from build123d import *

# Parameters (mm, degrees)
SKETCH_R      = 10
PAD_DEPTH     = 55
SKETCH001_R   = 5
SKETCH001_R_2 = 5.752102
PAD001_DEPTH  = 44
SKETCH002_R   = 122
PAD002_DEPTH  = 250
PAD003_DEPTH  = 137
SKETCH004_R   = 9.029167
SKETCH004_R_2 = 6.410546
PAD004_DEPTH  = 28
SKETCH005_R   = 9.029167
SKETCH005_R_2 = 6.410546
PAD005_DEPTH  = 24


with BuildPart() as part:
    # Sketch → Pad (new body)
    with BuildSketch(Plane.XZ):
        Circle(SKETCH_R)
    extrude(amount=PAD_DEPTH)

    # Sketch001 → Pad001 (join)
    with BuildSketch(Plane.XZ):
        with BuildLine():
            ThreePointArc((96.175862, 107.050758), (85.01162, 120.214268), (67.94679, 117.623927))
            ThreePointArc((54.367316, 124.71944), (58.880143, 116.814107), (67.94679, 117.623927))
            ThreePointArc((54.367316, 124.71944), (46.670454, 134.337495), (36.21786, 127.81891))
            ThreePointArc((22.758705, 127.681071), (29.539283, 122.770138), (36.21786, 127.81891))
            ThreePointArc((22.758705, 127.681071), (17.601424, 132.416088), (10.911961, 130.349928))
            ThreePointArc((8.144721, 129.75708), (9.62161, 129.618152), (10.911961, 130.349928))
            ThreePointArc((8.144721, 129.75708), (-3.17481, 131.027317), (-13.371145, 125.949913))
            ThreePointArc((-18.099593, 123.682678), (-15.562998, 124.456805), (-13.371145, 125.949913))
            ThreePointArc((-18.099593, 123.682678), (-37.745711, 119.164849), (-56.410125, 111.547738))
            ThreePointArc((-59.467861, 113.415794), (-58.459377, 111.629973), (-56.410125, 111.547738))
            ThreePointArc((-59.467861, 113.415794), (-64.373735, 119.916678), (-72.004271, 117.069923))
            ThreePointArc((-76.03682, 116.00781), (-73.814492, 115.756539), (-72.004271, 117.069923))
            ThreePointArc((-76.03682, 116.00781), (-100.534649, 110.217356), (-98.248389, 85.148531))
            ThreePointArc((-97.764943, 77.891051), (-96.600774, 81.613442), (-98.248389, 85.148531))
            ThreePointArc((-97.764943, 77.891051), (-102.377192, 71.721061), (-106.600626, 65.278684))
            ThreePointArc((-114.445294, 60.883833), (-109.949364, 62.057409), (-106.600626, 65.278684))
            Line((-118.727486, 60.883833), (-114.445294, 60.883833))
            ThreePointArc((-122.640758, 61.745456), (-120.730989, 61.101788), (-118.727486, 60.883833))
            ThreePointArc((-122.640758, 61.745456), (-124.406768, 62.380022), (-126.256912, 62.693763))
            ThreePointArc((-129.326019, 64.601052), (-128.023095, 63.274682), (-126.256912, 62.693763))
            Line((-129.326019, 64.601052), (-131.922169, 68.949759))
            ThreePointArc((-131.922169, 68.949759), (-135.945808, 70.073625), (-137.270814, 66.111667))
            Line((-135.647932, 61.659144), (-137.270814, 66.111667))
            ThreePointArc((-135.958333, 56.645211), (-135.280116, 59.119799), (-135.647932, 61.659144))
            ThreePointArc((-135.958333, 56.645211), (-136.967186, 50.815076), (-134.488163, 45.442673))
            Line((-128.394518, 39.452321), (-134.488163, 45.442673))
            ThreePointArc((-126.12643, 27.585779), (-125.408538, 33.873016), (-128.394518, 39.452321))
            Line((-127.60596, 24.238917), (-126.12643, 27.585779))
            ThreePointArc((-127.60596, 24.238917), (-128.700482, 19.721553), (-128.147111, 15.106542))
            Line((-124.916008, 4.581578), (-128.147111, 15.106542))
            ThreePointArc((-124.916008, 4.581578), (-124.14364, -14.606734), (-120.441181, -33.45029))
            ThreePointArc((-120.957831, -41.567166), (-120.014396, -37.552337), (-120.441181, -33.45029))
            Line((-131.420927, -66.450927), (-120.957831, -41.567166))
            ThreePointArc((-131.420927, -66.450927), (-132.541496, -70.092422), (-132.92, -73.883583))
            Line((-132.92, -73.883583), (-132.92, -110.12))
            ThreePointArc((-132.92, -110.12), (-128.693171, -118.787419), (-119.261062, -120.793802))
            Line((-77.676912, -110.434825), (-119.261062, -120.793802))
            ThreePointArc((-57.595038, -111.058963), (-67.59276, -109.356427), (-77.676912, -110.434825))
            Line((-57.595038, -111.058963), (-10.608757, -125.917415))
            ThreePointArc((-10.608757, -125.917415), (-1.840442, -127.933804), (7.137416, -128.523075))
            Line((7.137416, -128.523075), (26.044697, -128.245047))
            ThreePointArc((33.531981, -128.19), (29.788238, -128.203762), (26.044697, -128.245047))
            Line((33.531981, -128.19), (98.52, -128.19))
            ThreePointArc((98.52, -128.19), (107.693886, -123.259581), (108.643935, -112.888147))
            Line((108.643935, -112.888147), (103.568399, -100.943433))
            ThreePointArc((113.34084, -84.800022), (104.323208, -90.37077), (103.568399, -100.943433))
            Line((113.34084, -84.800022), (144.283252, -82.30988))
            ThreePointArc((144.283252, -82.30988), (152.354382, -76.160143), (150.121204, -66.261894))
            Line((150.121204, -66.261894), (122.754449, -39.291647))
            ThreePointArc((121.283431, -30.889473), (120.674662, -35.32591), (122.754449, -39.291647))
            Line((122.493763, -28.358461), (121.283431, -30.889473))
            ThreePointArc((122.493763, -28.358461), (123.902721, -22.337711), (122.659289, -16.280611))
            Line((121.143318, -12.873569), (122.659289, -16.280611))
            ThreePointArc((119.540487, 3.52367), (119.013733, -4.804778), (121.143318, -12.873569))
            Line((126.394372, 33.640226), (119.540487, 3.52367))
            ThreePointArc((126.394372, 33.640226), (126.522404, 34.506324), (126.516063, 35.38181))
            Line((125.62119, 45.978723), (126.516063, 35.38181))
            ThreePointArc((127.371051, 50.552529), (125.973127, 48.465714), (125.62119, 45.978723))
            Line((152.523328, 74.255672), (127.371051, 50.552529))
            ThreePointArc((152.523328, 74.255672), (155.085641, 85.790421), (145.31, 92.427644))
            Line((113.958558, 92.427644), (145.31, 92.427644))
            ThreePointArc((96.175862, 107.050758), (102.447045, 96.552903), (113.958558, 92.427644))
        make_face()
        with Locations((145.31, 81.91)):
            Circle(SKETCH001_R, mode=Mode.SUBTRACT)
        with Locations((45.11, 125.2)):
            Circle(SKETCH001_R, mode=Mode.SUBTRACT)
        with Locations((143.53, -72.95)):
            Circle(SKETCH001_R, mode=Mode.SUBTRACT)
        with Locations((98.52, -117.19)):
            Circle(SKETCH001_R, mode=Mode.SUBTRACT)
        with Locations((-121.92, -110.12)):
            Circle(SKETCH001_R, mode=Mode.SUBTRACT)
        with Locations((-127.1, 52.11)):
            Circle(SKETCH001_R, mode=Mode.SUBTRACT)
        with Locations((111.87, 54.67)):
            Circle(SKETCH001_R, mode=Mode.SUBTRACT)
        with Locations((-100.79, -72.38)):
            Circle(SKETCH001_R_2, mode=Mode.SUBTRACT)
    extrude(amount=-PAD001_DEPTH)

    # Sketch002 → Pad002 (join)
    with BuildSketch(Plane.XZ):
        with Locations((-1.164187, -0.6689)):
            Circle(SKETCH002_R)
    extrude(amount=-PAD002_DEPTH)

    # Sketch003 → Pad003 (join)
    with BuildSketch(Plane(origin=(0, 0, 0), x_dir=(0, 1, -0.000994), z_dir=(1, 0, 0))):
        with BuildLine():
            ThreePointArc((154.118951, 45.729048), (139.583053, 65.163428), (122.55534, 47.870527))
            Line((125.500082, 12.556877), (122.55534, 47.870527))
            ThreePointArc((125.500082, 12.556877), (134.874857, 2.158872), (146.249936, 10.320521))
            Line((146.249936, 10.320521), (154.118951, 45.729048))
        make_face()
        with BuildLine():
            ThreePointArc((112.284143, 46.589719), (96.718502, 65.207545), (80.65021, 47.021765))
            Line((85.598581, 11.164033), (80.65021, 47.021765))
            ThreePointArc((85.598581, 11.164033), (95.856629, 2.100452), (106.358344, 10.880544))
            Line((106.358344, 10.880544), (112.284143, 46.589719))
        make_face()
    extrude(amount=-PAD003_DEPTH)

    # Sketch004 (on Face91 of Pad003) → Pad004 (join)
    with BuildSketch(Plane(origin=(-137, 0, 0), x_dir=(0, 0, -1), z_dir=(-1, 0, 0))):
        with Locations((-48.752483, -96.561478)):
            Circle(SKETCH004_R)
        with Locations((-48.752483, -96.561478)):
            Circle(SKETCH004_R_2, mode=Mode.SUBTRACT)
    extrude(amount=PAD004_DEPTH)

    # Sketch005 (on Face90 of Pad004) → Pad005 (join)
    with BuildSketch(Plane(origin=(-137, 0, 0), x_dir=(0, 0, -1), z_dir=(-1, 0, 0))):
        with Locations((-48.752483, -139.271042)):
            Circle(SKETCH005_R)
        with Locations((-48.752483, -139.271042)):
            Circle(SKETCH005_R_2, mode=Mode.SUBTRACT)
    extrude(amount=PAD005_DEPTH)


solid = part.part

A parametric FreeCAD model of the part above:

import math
import FreeCAD as App
import Part
import Sketcher

V = App.Vector

doc = App.newDocument("Part")
body = doc.addObject("PartDesign::Body", "Body")

sketch1 = doc.addObject("Sketcher::SketchObject", "Sketch")
body.addObject(sketch1)
sketch1.AttachmentSupport = (doc.XZ_Plane, [""])
sketch1.MapMode = "FlatFace"
sketch1.addGeometry(Part.Circle(V(0, 0, 0), V(0, 0, 1), 10), False)
sketch1.addConstraint(Sketcher.Constraint("Coincident", 0, 3, -1, 1))
sketch1.addConstraint(Sketcher.Constraint("Diameter", 0, 20.0))
pad1 = doc.addObject("PartDesign::Pad", "Pad")
body.addObject(pad1)
pad1.Profile = sketch1
pad1.Length = 55

sketch2 = doc.addObject("Sketcher::SketchObject", "Sketch001")
body.addObject(sketch2)
sketch2.AttachmentSupport = (doc.XZ_Plane, [""])
sketch2.MapMode = "FlatFace"
sketch2.addGeometry(Part.ArcOfCircle(Part.Circle(V(78.8, 103.63, 0), V(0, 0, 1), 17.70938), math.radians(11.137301), math.radians(127.79593)), False)
sketch2.addGeometry(Part.ArcOfCircle(Part.Circle(V(62.782558, 124.282593, 0), V(0, 0, 1), 8.426573), math.radians(177.028366), math.radians(307.795922)), False)
sketch2.addGeometry(Part.ArcOfCircle(Part.Circle(V(45.11, 125.199999, 0), V(0, 0, 1), 9.269781), math.radians(-2.971632), math.radians(163.589259)), False)
sketch2.addGeometry(Part.ArcOfCircle(Part.Circle(V(29.467215, 129.807108, 0), V(0, 0, 1), 7.037339), math.radians(-162.415737), math.radians(-16.410739)), False)
sketch2.addGeometry(Part.ArcOfCircle(Part.Circle(V(16.05618, 125.556931, 0), V(0, 0, 1), 7.03106), math.radians(17.584259), math.radians(137.024229)), False)
sketch2.addGeometry(Part.ArcOfCircle(Part.Circle(V(9.103933, 132.034513, 0), V(0, 0, 1), 2.471192), math.radians(-112.839917), math.radians(-42.975795)), False)
sketch2.addGeometry(Part.ArcOfCircle(Part.Circle(V(0.332168, 111.207945, 0), V(0, 0, 1), 20.127255), math.radians(67.160072), math.radians(132.908822)), False)
sketch2.addGeometry(Part.ArcOfCircle(Part.Circle(V(-19.376858, 132.410828, 0), V(0, 0, 1), 8.821111), math.radians(-81.674514), math.radians(-47.09115)), False)
sketch2.addGeometry(Part.ArcOfCircle(Part.Circle(V(0.000014, -0.000042, 0), V(0, 0, 1), 125.000044), math.radians(98.325513), math.radians(116.825898)), False)
sketch2.addGeometry(Part.ArcOfCircle(Part.Circle(V(-57.36095, 113.427938, 0), V(0, 0, 1), 2.106946), math.radians(-179.669745), math.radians(-63.174092)), False)
sketch2.addGeometry(Part.ArcOfCircle(Part.Circle(V(-66.280067, 113.376526, 0), V(0, 0, 1), 6.812319), math.radians(0.330272), math.radians(147.168896)), False)
sketch2.addGeometry(Part.ArcOfCircle(Part.Circle(V(-74.601859, 118.745951, 0), V(0, 0, 1), 3.091364), math.radians(-117.657417), math.radians(-32.831117)), False)
sketch2.addGeometry(Part.ArcOfCircle(Part.Circle(V(-84.95, 99, 0), V(0, 0, 1), 19.201832), math.radians(62.342587), math.radians(226.167033)), False)
sketch2.addGeometry(Part.ArcOfCircle(Part.Circle(V(-101.98678, 81.254662, 0), V(0, 0, 1), 5.397943), math.radians(-38.544937), math.radians(46.167019)), False)
sketch2.addGeometry(Part.ArcOfCircle(Part.Circle(V(-0.000099, 0.000064, 0), V(0, 0, 1), 124.999883), math.radians(141.455045), math.radians(148.518082)), False)
sketch2.addGeometry(Part.ArcOfCircle(Part.Circle(V(-114.445294, 70.082499, 0), V(0, 0, 1), 9.198666), math.radians(-90), math.radians(-31.481922)), False)
sketch2.addGeometry(Part.LineSegment(V(-114.445294, 60.883833, 0), V(-118.727486, 60.883833, 0)), False)
sketch2.addGeometry(Part.ArcOfCircle(Part.Circle(V(-118.727487, 70.201184, 0), V(0, 0, 1), 9.317351), math.radians(-114.83448), math.radians(-89.999997)), False)
sketch2.addGeometry(Part.ArcOfCircle(Part.Circle(V(-127.099993, 52.110018, 0), V(0, 0, 1), 10.617271), math.radians(65.165523), math.radians(85.445543)), False)
sketch2.addGeometry(Part.ArcOfCircle(Part.Circle(V(-125.944149, 66.62001, 0), V(0, 0, 1), 3.938685), math.radians(-149.163026), math.radians(-94.55454)), False)
sketch2.addGeometry(Part.LineSegment(V(-129.326019, 64.601052, 0), V(-131.922169, 68.949759, 0)), False)
sketch2.addGeometry(Part.ArcOfCircle(Part.Circle(V(-134.524961, 67.395907, 0), V(0, 0, 1), 3.031333), math.radians(30.836967), math.radians(205.065564)), False)
sketch2.addGeometry(Part.LineSegment(V(-137.270814, 66.111667, 0), V(-135.647932, 61.659144, 0)), False)
sketch2.addGeometry(Part.ArcOfCircle(Part.Circle(V(-141.549925, 59.507948, 0), V(0, 0, 1), 6.281813), math.radians(-27.111163), math.radians(20.026106)), False)
sketch2.addGeometry(Part.ArcOfCircle(Part.Circle(V(-127.099996, 52.110001, 0), V(0, 0, 1), 9.951797), math.radians(152.888876), math.radians(222.064144)), False)
sketch2.addGeometry(Part.LineSegment(V(-134.488163, 45.442673, 0), V(-128.394518, 39.452321, 0)), False)
sketch2.addGeometry(Part.ArcOfCircle(Part.Circle(V(-135.839075, 31.879396, 0), V(0, 0, 1), 10.619351), math.radians(-23.848529), math.radians(45.489748)), False)
sketch2.addGeometry(Part.LineSegment(V(-126.12643, 27.585779, 0), V(-127.60596, 24.238917, 0)), False)
sketch2.addGeometry(Part.ArcOfCircle(Part.Circle(V(-115.635946, 18.947397, 0), V(0, 0, 1), 13.087452), math.radians(156.151473), math.radians(197.066183)), False)
sketch2.addGeometry(Part.LineSegment(V(-128.147111, 15.106542, 0), V(-124.916008, 4.581578, 0)), False)
sketch2.addGeometry(Part.ArcOfCircle(Part.Circle(V(-0.000028, -0.000004, 0), V(0, 0, 1), 124.999972), math.radians(177.899486), math.radians(195.521642)), False)
sketch2.addGeometry(Part.ArcOfCircle(Part.Circle(V(-132.377588, -36.765402, 0), V(0, 0, 1), 12.388212), math.radians(-22.805711), math.radians(15.521632)), False)
sketch2.addGeometry(Part.LineSegment(V(-120.957831, -41.567166, 0), V(-131.420927, -66.450927, 0)), False)
sketch2.addGeometry(Part.ArcOfCircle(Part.Circle(V(-113.74428, -73.883584, 0), V(0, 0, 1), 19.17572), math.radians(157.194274), math.radians(179.999998)), False)
sketch2.addGeometry(Part.LineSegment(V(-132.92, -73.883583, 0), V(-132.92, -110.12, 0)), False)
sketch2.addGeometry(Part.ArcOfCircle(Part.Circle(V(-121.92, -110.12, 0), V(0, 0, 1), 11), math.radians(-179.999999), math.radians(-76.011826)), False)
sketch2.addGeometry(Part.LineSegment(V(-119.261062, -120.793802, 0), V(-77.676912, -110.434825, 0)), False)
sketch2.addGeometry(Part.ArcOfCircle(Part.Circle(V(-68.741135, -146.305817, 0), V(0, 0, 1), 36.967231), math.radians(72.451507), math.radians(103.988172)), False)
sketch2.addGeometry(Part.LineSegment(V(-57.595038, -111.058963, 0), V(-10.608757, -125.917415, 0)), False)
sketch2.addGeometry(Part.ArcOfCircle(Part.Circle(V(6.312271, -72.408732, 0), V(0, 0, 1), 56.120409), math.radians(-107.548495), math.radians(-89.157543)), False)
sketch2.addGeometry(Part.LineSegment(V(7.137416, -128.523075, 0), V(26.044697, -128.245047, 0)), False)
sketch2.addGeometry(Part.ArcOfCircle(Part.Circle(V(33.531999, -637.415916, 0), V(0, 0, 1), 509.225916), math.radians(90.000002), math.radians(90.842467)), False)
sketch2.addGeometry(Part.LineSegment(V(33.531981, -128.19, 0), V(98.52, -128.19, 0)), False)
sketch2.addGeometry(Part.ArcOfCircle(Part.Circle(V(98.52, -117.19, 0), V(0, 0, 1), 11), math.radians(-89.999999), math.radians(23.021563)), False)
sketch2.addGeometry(Part.LineSegment(V(108.643935, -112.888147, 0), V(103.568399, -100.943433, 0)), False)
sketch2.addGeometry(Part.ArcOfCircle(Part.Circle(V(114.273922, -96.394452, 0), V(0, 0, 1), 11.631915), math.radians(94.60106), math.radians(203.021566)), False)
sketch2.addGeometry(Part.LineSegment(V(113.34084, -84.800022, 0), V(144.283252, -82.30988, 0)), False)
sketch2.addGeometry(Part.ArcOfCircle(Part.Circle(V(143.53, -72.95, 0), V(0, 0, 1), 9.39014), math.radians(-85.398941), math.radians(45.418092)), False)
sketch2.addGeometry(Part.LineSegment(V(150.121204, -66.261894, 0), V(122.754449, -39.291647, 0)), False)
sketch2.addGeometry(Part.ArcOfCircle(Part.Circle(V(127.911341, -34.058943, 0), V(0, 0, 1), 7.34675), math.radians(154.442851), math.radians(225.418076)), False)
sketch2.addGeometry(Part.LineSegment(V(121.283431, -30.889473, 0), V(122.493763, -28.358461, 0)), False)
sketch2.addGeometry(Part.ArcOfCircle(Part.Circle(V(109.490282, -22.14019, 0), V(0, 0, 1), 14.413792), math.radians(-25.55715), math.radians(23.98678)), False)
sketch2.addGeometry(Part.LineSegment(V(122.659289, -16.280611, 0), V(121.143318, -12.873569, 0)), False)
sketch2.addGeometry(Part.ArcOfCircle(Part.Circle(V(144.98233, -2.266346, 0), V(0, 0, 1), 26.092368), math.radians(167.179076), math.radians(203.986782)), False)
sketch2.addGeometry(Part.LineSegment(V(119.540487, 3.52367, 0), V(126.394372, 33.640226, 0)), False)
sketch2.addGeometry(Part.ArcOfCircle(Part.Circle(V(120.845719, 34.902975, 0), V(0, 0, 1), 5.690526), math.radians(-12.820871), math.radians(4.826922)), False)
sketch2.addGeometry(Part.LineSegment(V(126.516063, 35.38181, 0), V(125.62119, 45.978723, 0)), False)
sketch2.addGeometry(Part.ArcOfCircle(Part.Circle(V(131.234616, 46.452758, 0), V(0, 0, 1), 5.633406), math.radians(133.301006), math.radians(184.826979)), False)
sketch2.addGeometry(Part.LineSegment(V(127.371051, 50.552529, 0), V(152.523328, 74.255672, 0)), False)
sketch2.addGeometry(Part.ArcOfCircle(Part.Circle(V(145.309999, 81.91, 0), V(0, 0, 1), 10.517644), math.radians(-46.698987), math.radians(89.999995)), False)
sketch2.addGeometry(Part.LineSegment(V(145.31, 92.427644, 0), V(113.958558, 92.427644, 0)), False)
sketch2.addGeometry(Part.ArcOfCircle(Part.Circle(V(113.958558, 110.551682, 0), V(0, 0, 1), 18.124038), math.radians(-168.86247), math.radians(-90.000002)), False)
sketch2.addGeometry(Part.Circle(V(-121.92, -110.12, 0), V(0, 0, 1), 5), False)
sketch2.addGeometry(Part.Circle(V(-100.79, -72.38, 0), V(0, 0, 1), 5.752102), False)
sketch2.addGeometry(Part.Circle(V(98.52, -117.19, 0), V(0, 0, 1), 5), False)
sketch2.addGeometry(Part.Circle(V(143.53, -72.95, 0), V(0, 0, 1), 5), False)
sketch2.addGeometry(Part.Circle(V(-127.1, 52.11, 0), V(0, 0, 1), 5), False)
sketch2.addGeometry(Part.Circle(V(111.87, 54.67, 0), V(0, 0, 1), 5), False)
sketch2.addGeometry(Part.Circle(V(45.11, 125.2, 0), V(0, 0, 1), 5), False)
sketch2.addGeometry(Part.Circle(V(145.31, 81.91, 0), V(0, 0, 1), 5), False)
sketch2.addConstraint(Sketcher.Constraint("Coincident", 0, 2, 1, 2))
sketch2.addConstraint(Sketcher.Constraint("Coincident", 1, 1, 2, 1))
sketch2.addConstraint(Sketcher.Constraint("Coincident", 2, 2, 3, 2))
sketch2.addConstraint(Sketcher.Constraint("Coincident", 3, 1, 4, 1))
sketch2.addConstraint(Sketcher.Constraint("Coincident", 4, 2, 5, 2))
sketch2.addConstraint(Sketcher.Constraint("Coincident", 5, 1, 6, 1))
sketch2.addConstraint(Sketcher.Constraint("Coincident", 6, 2, 7, 2))
sketch2.addConstraint(Sketcher.Constraint("Coincident", 7, 1, 8, 1))
sketch2.addConstraint(Sketcher.Constraint("Coincident", 8, 2, 9, 2))
sketch2.addConstraint(Sketcher.Constraint("Coincident", 9, 1, 10, 1))
sketch2.addConstraint(Sketcher.Constraint("Coincident", 10, 2, 11, 2))
sketch2.addConstraint(Sketcher.Constraint("Coincident", 11, 1, 12, 1))
sketch2.addConstraint(Sketcher.Constraint("Coincident", 12, 2, 13, 2))
sketch2.addConstraint(Sketcher.Constraint("Coincident", 13, 1, 14, 1))
sketch2.addConstraint(Sketcher.Constraint("Coincident", 14, 2, 15, 2))
sketch2.addConstraint(Sketcher.Constraint("Coincident", 15, 1, 16, 1))
sketch2.addConstraint(Sketcher.Constraint("Coincident", 16, 2, 17, 2))
sketch2.addConstraint(Sketcher.Constraint("Coincident", 17, 1, 18, 1))
sketch2.addConstraint(Sketcher.Constraint("Coincident", 18, 2, 19, 2))
sketch2.addConstraint(Sketcher.Constraint("Coincident", 19, 1, 20, 1))
sketch2.addConstraint(Sketcher.Constraint("Coincident", 20, 2, 21, 1))
sketch2.addConstraint(Sketcher.Constraint("Coincident", 21, 2, 22, 1))
sketch2.addConstraint(Sketcher.Constraint("Coincident", 22, 2, 23, 2))
sketch2.addConstraint(Sketcher.Constraint("Coincident", 23, 1, 24, 1))
sketch2.addConstraint(Sketcher.Constraint("Coincident", 24, 2, 25, 1))
sketch2.addConstraint(Sketcher.Constraint("Coincident", 25, 2, 26, 2))
sketch2.addConstraint(Sketcher.Constraint("Coincident", 26, 1, 27, 1))
sketch2.addConstraint(Sketcher.Constraint("Coincident", 27, 2, 28, 1))
sketch2.addConstraint(Sketcher.Constraint("Coincident", 28, 2, 29, 1))
sketch2.addConstraint(Sketcher.Constraint("Coincident", 29, 2, 30, 1))
sketch2.addConstraint(Sketcher.Constraint("Coincident", 30, 2, 31, 2))
sketch2.addConstraint(Sketcher.Constraint("Coincident", 31, 1, 32, 1))
sketch2.addConstraint(Sketcher.Constraint("Coincident", 32, 2, 33, 1))
sketch2.addConstraint(Sketcher.Constraint("Coincident", 33, 2, 34, 1))
sketch2.addConstraint(Sketcher.Constraint("Coincident", 34, 2, 35, 1))
sketch2.addConstraint(Sketcher.Constraint("Coincident", 35, 2, 36, 1))
sketch2.addConstraint(Sketcher.Constraint("Coincident", 36, 2, 37, 2))
sketch2.addConstraint(Sketcher.Constraint("Coincident", 37, 1, 38, 1))
sketch2.addConstraint(Sketcher.Constraint("Coincident", 38, 2, 39, 1))
sketch2.addConstraint(Sketcher.Constraint("Coincident", 39, 2, 40, 1))
sketch2.addConstraint(Sketcher.Constraint("Coincident", 40, 2, 41, 2))
sketch2.addConstraint(Sketcher.Constraint("Coincident", 41, 1, 42, 1))
sketch2.addConstraint(Sketcher.Constraint("Coincident", 42, 2, 43, 1))
sketch2.addConstraint(Sketcher.Constraint("Coincident", 43, 2, 44, 1))
sketch2.addConstraint(Sketcher.Constraint("Coincident", 44, 2, 45, 2))
sketch2.addConstraint(Sketcher.Constraint("Coincident", 45, 1, 46, 1))
sketch2.addConstraint(Sketcher.Constraint("Coincident", 46, 2, 47, 1))
sketch2.addConstraint(Sketcher.Constraint("Coincident", 47, 2, 48, 1))
sketch2.addConstraint(Sketcher.Constraint("Coincident", 48, 2, 49, 2))
sketch2.addConstraint(Sketcher.Constraint("Coincident", 49, 1, 50, 1))
sketch2.addConstraint(Sketcher.Constraint("Coincident", 50, 2, 51, 1))
sketch2.addConstraint(Sketcher.Constraint("Coincident", 51, 2, 52, 1))
sketch2.addConstraint(Sketcher.Constraint("Coincident", 52, 2, 53, 2))
sketch2.addConstraint(Sketcher.Constraint("Coincident", 53, 1, 54, 1))
sketch2.addConstraint(Sketcher.Constraint("Coincident", 54, 2, 55, 1))
sketch2.addConstraint(Sketcher.Constraint("Coincident", 55, 2, 56, 1))
sketch2.addConstraint(Sketcher.Constraint("Coincident", 56, 2, 57, 2))
sketch2.addConstraint(Sketcher.Constraint("Coincident", 57, 1, 58, 1))
sketch2.addConstraint(Sketcher.Constraint("Coincident", 58, 2, 59, 1))
sketch2.addConstraint(Sketcher.Constraint("Coincident", 59, 2, 60, 1))
sketch2.addConstraint(Sketcher.Constraint("Coincident", 60, 2, 61, 2))
sketch2.addConstraint(Sketcher.Constraint("Coincident", 61, 1, 0, 1))
sketch2.addConstraint(Sketcher.Constraint("Horizontal", 16))
sketch2.addConstraint(Sketcher.Constraint("Vertical", 34))
sketch2.addConstraint(Sketcher.Constraint("Horizontal", 42))
sketch2.addConstraint(Sketcher.Constraint("Horizontal", 60))
sketch2.addConstraint(Sketcher.Constraint("Coincident", 62, 3, 35, 3))
sketch2.addConstraint(Sketcher.Constraint("Coincident", 64, 3, 43, 3))
sketch2.addConstraint(Sketcher.Constraint("Coincident", 65, 3, 47, 3))
sketch2.addConstraint(Sketcher.Constraint("Coincident", 66, 3, 24, 3))
sketch2.addConstraint(Sketcher.Constraint("Coincident", 68, 3, 2, 3))
sketch2.addConstraint(Sketcher.Constraint("Coincident", 69, 3, 59, 3))
sketch2.addConstraint(Sketcher.Constraint("Diameter", 62, 10.0))
sketch2.addConstraint(Sketcher.Constraint("Diameter", 64, 10.0))
sketch2.addConstraint(Sketcher.Constraint("Diameter", 65, 10.0))
sketch2.addConstraint(Sketcher.Constraint("Diameter", 66, 10.0))
sketch2.addConstraint(Sketcher.Constraint("Diameter", 67, 10.0))
sketch2.addConstraint(Sketcher.Constraint("Diameter", 68, 10.0))
sketch2.addConstraint(Sketcher.Constraint("Diameter", 69, 10.0))
sketch2.addConstraint(Sketcher.Constraint("Radius", 35, 11.0))
sketch2.addConstraint(Sketcher.Constraint("Radius", 43, 11.0))
sketch2.addConstraint(Sketcher.Constraint("DistanceY", -1, 1, 12, 3, 99.0))
sketch2.addConstraint(Sketcher.Constraint("DistanceX", -1, 1, 0, 3, 78.8))
sketch2.addConstraint(Sketcher.Constraint("DistanceY", -1, 1, 2, 3, 125.199999))
sketch2.addConstraint(Sketcher.Constraint("DistanceX", 66, 3, -1, 1, 127.1))
sketch2.addConstraint(Sketcher.Constraint("DistanceY", -1, 1, 0, 3, 103.63))
sketch2.addConstraint(Sketcher.Constraint("DistanceX", -1, 1, 2, 3, 45.11))
sketch2.addConstraint(Sketcher.Constraint("DistanceX", 12, 3, -1, 1, 84.95))
sketch2.addConstraint(Sketcher.Constraint("DistanceY", -1, 1, 24, 3, 52.110001))
sketch2.addConstraint(Sketcher.Constraint("DistanceX", 35, 3, -1, 1, 121.92))
sketch2.addConstraint(Sketcher.Constraint("DistanceY", 35, 3, -1, 1, 110.12))
sketch2.addConstraint(Sketcher.Constraint("DistanceX", -1, 1, 43, 3, 98.52))
sketch2.addConstraint(Sketcher.Constraint("DistanceY", 43, 3, -1, 1, 117.19))
sketch2.addConstraint(Sketcher.Constraint("DistanceX", -1, 1, 47, 3, 143.53))
sketch2.addConstraint(Sketcher.Constraint("DistanceY", 47, 3, -1, 1, 72.95))
sketch2.addConstraint(Sketcher.Constraint("DistanceX", -1, 1, 59, 3, 145.309999))
sketch2.addConstraint(Sketcher.Constraint("DistanceY", -1, 1, 59, 3, 81.91))
sketch2.addConstraint(Sketcher.Constraint("DistanceX", 63, 3, -1, 1, 100.79))
sketch2.addConstraint(Sketcher.Constraint("DistanceY", 63, 3, -1, 1, 72.38))
sketch2.addConstraint(Sketcher.Constraint("DistanceX", -1, 1, 67, 3, 111.87))
sketch2.addConstraint(Sketcher.Constraint("DistanceY", -1, 1, 67, 3, 54.67))
sketch2.addConstraint(Sketcher.Constraint("DistanceY", 34, 2, -1, 1, 110.12))
sketch2.addConstraint(Sketcher.Constraint("DistanceX", -1, 1, 42, 2, 98.52))
sketch2.addConstraint(Sketcher.Constraint("DistanceX", -1, 1, 59, 2, 145.31))
sketch2.addConstraint(Sketcher.Constraint("Radius", 0, 17.70938))
sketch2.addConstraint(Sketcher.Constraint("Radius", 2, 9.269781))
sketch2.addConstraint(Sketcher.Constraint("Radius", 3, 7.037339))
sketch2.addConstraint(Sketcher.Constraint("Radius", 4, 7.03106))
sketch2.addConstraint(Sketcher.Constraint("Radius", 7, 8.821111))
sketch2.addConstraint(Sketcher.Constraint("Radius", 10, 6.812319))
sketch2.addConstraint(Sketcher.Constraint("Radius", 17, 9.317351))
sketch2.addConstraint(Sketcher.Constraint("Radius", 18, 10.617271))
sketch2.addConstraint(Sketcher.Constraint("Radius", 26, 10.619351))
sketch2.addConstraint(Sketcher.Constraint("Radius", 30, 124.999972))
sketch2.addConstraint(Sketcher.Constraint("Radius", 31, 12.388212))
sketch2.addConstraint(Sketcher.Constraint("Radius", 33, 19.17572))
sketch2.addConstraint(Sketcher.Constraint("Radius", 37, 36.967231))
sketch2.addConstraint(Sketcher.Constraint("Radius", 39, 56.120409))
sketch2.addConstraint(Sketcher.Constraint("Radius", 47, 9.39014))
sketch2.addConstraint(Sketcher.Constraint("Radius", 49, 7.34675))
sketch2.addConstraint(Sketcher.Constraint("Radius", 61, 18.124038))
sketch2.addConstraint(Sketcher.Constraint("Diameter", 63, 11.504204))
sketch2.addConstraint(Sketcher.Constraint("DistanceX", -1, 1, 41, 3, 33.531999))
sketch2.addConstraint(Sketcher.Constraint("Radius", 1, 8.426573))
sketch2.addConstraint(Sketcher.Constraint("Radius", 5, 2.471192))
sketch2.addConstraint(Sketcher.Constraint("Radius", 6, 20.127255))
sketch2.addConstraint(Sketcher.Constraint("Radius", 8, 125.000044))
sketch2.addConstraint(Sketcher.Constraint("Radius", 9, 2.106946))
sketch2.addConstraint(Sketcher.Constraint("Radius", 11, 3.091364))
sketch2.addConstraint(Sketcher.Constraint("Radius", 12, 19.201832))
sketch2.addConstraint(Sketcher.Constraint("Radius", 13, 5.397943))
sketch2.addConstraint(Sketcher.Constraint("Radius", 14, 124.999883))
sketch2.addConstraint(Sketcher.Constraint("Radius", 15, 9.198666))
sketch2.addConstraint(Sketcher.Constraint("Radius", 19, 3.938685))
sketch2.addConstraint(Sketcher.Constraint("Radius", 21, 3.031333))
sketch2.addConstraint(Sketcher.Constraint("Radius", 23, 6.281813))
sketch2.addConstraint(Sketcher.Constraint("Radius", 24, 9.951797))
sketch2.addConstraint(Sketcher.Constraint("Radius", 28, 13.087452))
sketch2.addConstraint(Sketcher.Constraint("Radius", 41, 509.225916))
sketch2.addConstraint(Sketcher.Constraint("Radius", 45, 11.631915))
sketch2.addConstraint(Sketcher.Constraint("Radius", 51, 14.413792))
sketch2.addConstraint(Sketcher.Constraint("Radius", 53, 26.092368))
sketch2.addConstraint(Sketcher.Constraint("Radius", 55, 5.690526))
sketch2.addConstraint(Sketcher.Constraint("Radius", 57, 5.633406))
sketch2.addConstraint(Sketcher.Constraint("Radius", 59, 10.517644))
sketch2.addConstraint(Sketcher.Constraint("DistanceX", 16, 2, 16, 1, 4.282192))
sketch2.addConstraint(Sketcher.Constraint("DistanceX", 42, 1, 42, 2, 64.988019))
sketch2.addConstraint(Sketcher.Constraint("DistanceY", -1, 1, 15, 3, 70.082499))
sketch2.addConstraint(Sketcher.Constraint("DistanceY", 35, 2, -1, 1, 120.793802))
sketch2.addConstraint(Sketcher.Constraint("DistanceX", -1, 1, 44, 2, 103.568399))
sketch2.addConstraint(Sketcher.Constraint("Distance", 22, 4.739062))
sketch2.addConstraint(Sketcher.Constraint("Distance", 25, 8.544988))
sketch2.addConstraint(Sketcher.Constraint("Distance", 44, 12.978338))
sketch2.addConstraint(Sketcher.Constraint("Distance", 46, 31.042449))
sketch2.addConstraint(Sketcher.Constraint("Distance", 52, 3.729089))
sketch2.addConstraint(Sketcher.Constraint("Distance", 54, 30.88661))
sketch2.addConstraint(Sketcher.Constraint("Distance", 56, 10.63463))
sketch2.addConstraint(Sketcher.Constraint("DistanceX", 60, 2, 60, 1, 31.351442))
sketch2.addConstraint(Sketcher.Constraint("DistanceY", 34, 2, 34, 1, 36.236417))
sketch2.addConstraint(Sketcher.Constraint("DistanceX", -1, 1, 4, 3, 16.05618))
sketch2.addConstraint(Sketcher.Constraint("DistanceY", -1, 1, 4, 3, 125.556931))
sketch2.addConstraint(Sketcher.Constraint("DistanceX", 9, 3, -1, 1, 57.36095))
sketch2.addConstraint(Sketcher.Constraint("DistanceY", -1, 1, 9, 3, 113.427938))
sketch2.addConstraint(Sketcher.Constraint("DistanceX", 11, 3, -1, 1, 74.601859))
sketch2.addConstraint(Sketcher.Constraint("DistanceX", 13, 3, -1, 1, 101.98678))
sketch2.addConstraint(Sketcher.Constraint("DistanceY", -1, 1, 18, 3, 52.110018))
sketch2.addConstraint(Sketcher.Constraint("DistanceX", 19, 3, -1, 1, 125.944149))
sketch2.addConstraint(Sketcher.Constraint("DistanceY", -1, 1, 19, 3, 66.62001))
sketch2.addConstraint(Sketcher.Constraint("DistanceX", 21, 3, -1, 1, 134.524961))
sketch2.addConstraint(Sketcher.Constraint("DistanceY", -1, 1, 23, 3, 59.507948))
sketch2.addConstraint(Sketcher.Constraint("DistanceX", 31, 3, -1, 1, 132.377588))
sketch2.addConstraint(Sketcher.Constraint("DistanceX", -1, 1, 39, 3, 6.312271))
sketch2.addConstraint(Sketcher.Constraint("DistanceX", -1, 1, 45, 3, 114.273922))
sketch2.addConstraint(Sketcher.Constraint("DistanceY", 45, 3, -1, 1, 96.394452))
sketch2.addConstraint(Sketcher.Constraint("DistanceX", -1, 1, 49, 3, 127.911341))
sketch2.addConstraint(Sketcher.Constraint("DistanceY", 51, 3, -1, 1, 22.14019))
sketch2.addConstraint(Sketcher.Constraint("DistanceX", -1, 1, 53, 3, 144.98233))
sketch2.addConstraint(Sketcher.Constraint("DistanceX", -1, 1, 55, 3, 120.845719))
sketch2.addConstraint(Sketcher.Constraint("DistanceX", -1, 1, 0, 2, 67.94679))
sketch2.addConstraint(Sketcher.Constraint("DistanceY", -1, 1, 1, 1, 124.71944))
sketch2.addConstraint(Sketcher.Constraint("DistanceX", -1, 1, 2, 2, 36.21786))
sketch2.addConstraint(Sketcher.Constraint("DistanceY", -1, 1, 3, 1, 127.681071))
sketch2.addConstraint(Sketcher.Constraint("DistanceX", -1, 1, 4, 2, 10.911961))
sketch2.addConstraint(Sketcher.Constraint("DistanceX", -1, 1, 5, 1, 8.144721))
sketch2.addConstraint(Sketcher.Constraint("DistanceY", -1, 1, 5, 1, 129.75708))
sketch2.addConstraint(Sketcher.Constraint("DistanceX", 9, 1, -1, 1, 59.467861))
sketch2.addConstraint(Sketcher.Constraint("DistanceX", 10, 2, -1, 1, 72.004271))
sketch2.addConstraint(Sketcher.Constraint("DistanceX", 11, 1, -1, 1, 76.03682))
sketch2.addConstraint(Sketcher.Constraint("DistanceX", 12, 2, -1, 1, 98.248389))
sketch2.addConstraint(Sketcher.Constraint("DistanceY", -1, 1, 13, 1, 77.891051))
sketch2.addConstraint(Sketcher.Constraint("DistanceX", 19, 1, -1, 1, 129.326019))
sketch2.addConstraint(Sketcher.Constraint("DistanceX", 20, 2, -1, 1, 131.922169))
sketch2.addConstraint(Sketcher.Constraint("DistanceY", -1, 1, 20, 2, 68.949759))
sketch2.addConstraint(Sketcher.Constraint("DistanceX", 22, 2, -1, 1, 135.647932))
sketch2.addConstraint(Sketcher.Constraint("DistanceY", -1, 1, 23, 1, 56.645211))
sketch2.addConstraint(Sketcher.Constraint("DistanceX", 25, 2, -1, 1, 128.394518))
sketch2.addConstraint(Sketcher.Constraint("DistanceY", -1, 1, 25, 2, 39.452321))
sketch2.addConstraint(Sketcher.Constraint("DistanceX", 26, 1, -1, 1, 126.12643))
sketch2.addConstraint(Sketcher.Constraint("DistanceY", -1, 1, 26, 1, 27.585779))
sketch2.addConstraint(Sketcher.Constraint("DistanceX", 27, 2, -1, 1, 127.60596))
sketch2.addConstraint(Sketcher.Constraint("DistanceX", 28, 2, -1, 1, 128.147111))
sketch2.addConstraint(Sketcher.Constraint("DistanceX", 29, 2, -1, 1, 124.916008))
sketch2.addConstraint(Sketcher.Constraint("DistanceY", -1, 1, 29, 2, 4.581578))
sketch2.addConstraint(Sketcher.Constraint("DistanceX", 30, 2, -1, 1, 120.441181))
sketch2.addConstraint(Sketcher.Constraint("DistanceY", 30, 2, -1, 1, 33.45029))
sketch2.addConstraint(Sketcher.Constraint("DistanceX", 31, 1, -1, 1, 120.957831))
sketch2.addConstraint(Sketcher.Constraint("DistanceX", 36, 2, -1, 1, 77.676912))
sketch2.addConstraint(Sketcher.Constraint("DistanceX", 37, 1, -1, 1, 57.595038))
sketch2.addConstraint(Sketcher.Constraint("DistanceX", -1, 1, 45, 1, 113.34084))
sketch2.addConstraint(Sketcher.Constraint("DistanceX", -1, 1, 48, 2, 122.754449))
sketch2.addConstraint(Sketcher.Constraint("DistanceX", -1, 1, 49, 1, 121.283431))
sketch2.addConstraint(Sketcher.Constraint("DistanceY", 50, 2, -1, 1, 28.358461))
sketch2.addConstraint(Sketcher.Constraint("DistanceX", -1, 1, 51, 2, 122.659289))
sketch2.addConstraint(Sketcher.Constraint("DistanceY", 51, 2, -1, 1, 16.280611))
sketch2.addConstraint(Sketcher.Constraint("DistanceY", 52, 2, -1, 1, 12.873569))
sketch2.addConstraint(Sketcher.Constraint("DistanceY", -1, 1, 53, 1, 3.52367))
sketch2.addConstraint(Sketcher.Constraint("DistanceY", -1, 1, 55, 2, 35.38181))
sketch2.addConstraint(Sketcher.Constraint("DistanceX", -1, 1, 56, 2, 125.62119))
sketch2.addConstraint(Sketcher.Constraint("DistanceX", -1, 1, 57, 1, 127.371051))
sketch2.addConstraint(Sketcher.Constraint("DistanceY", -1, 1, 57, 1, 50.552529))
sketch2.addConstraint(Sketcher.Constraint("DistanceX", -1, 1, 58, 2, 152.523328))
sketch2.addConstraint(Sketcher.Constraint("DistanceY", -1, 1, 61, 1, 107.050758))
sketch2.addConstraint(Sketcher.Constraint("Distance", 27, 3.659302))
sketch2.addConstraint(Sketcher.Constraint("Distance", 29, 11.009764))
sketch2.addConstraint(Sketcher.Constraint("Distance", 32, 26.994035))
sketch2.addConstraint(Sketcher.Constraint("Distance", 36, 42.854987))
sketch2.addConstraint(Sketcher.Constraint("Distance", 38, 49.279653))
sketch2.addConstraint(Sketcher.Constraint("Distance", 40, 18.909325))
sketch2.addConstraint(Sketcher.Constraint("Distance", 48, 38.423086))
sketch2.addConstraint(Sketcher.Constraint("Distance", 50, 2.805517))
sketch2.addConstraint(Sketcher.Constraint("DistanceX", -1, 1, 6, 3, 0.332168))
sketch2.addConstraint(Sketcher.Constraint("DistanceX", 7, 3, -1, 1, 19.376858))
sketch2.addConstraint(Sketcher.Constraint("DistanceX", 15, 3, -1, 1, 114.445294))
sketch2.addConstraint(Sketcher.Constraint("DistanceY", 33, 3, -1, 1, 73.883584))
sketch2.addConstraint(Sketcher.Constraint("DistanceX", 37, 3, -1, 1, 68.741135))
sketch2.addConstraint(Sketcher.Constraint("DistanceY", 39, 3, -1, 1, 72.408732))
sketch2.addConstraint(Sketcher.Constraint("DistanceY", -1, 1, 55, 3, 34.902975))
sketch2.addConstraint(Sketcher.Constraint("DistanceX", 6, 2, -1, 1, 13.371145))
sketch2.addConstraint(Sketcher.Constraint("DistanceX", 7, 1, -1, 1, 18.099593))
sketch2.addConstraint(Sketcher.Constraint("DistanceX", 8, 2, -1, 1, 56.410125))
sketch2.addConstraint(Sketcher.Constraint("DistanceX", 14, 2, -1, 1, 106.600626))
sketch2.addConstraint(Sketcher.Constraint("DistanceX", 15, 1, -1, 1, 114.445294))
sketch2.addConstraint(Sketcher.Constraint("DistanceX", 17, 1, -1, 1, 122.640758))
sketch2.addConstraint(Sketcher.Constraint("DistanceX", 18, 2, -1, 1, 126.256912))
sketch2.addConstraint(Sketcher.Constraint("DistanceX", -1, 1, 39, 2, 7.137416))
pad2 = doc.addObject("PartDesign::Pad", "Pad001")
body.addObject(pad2)
pad2.Profile = sketch2
pad2.Length = 44
pad2.Reversed = True

sketch3 = doc.addObject("Sketcher::SketchObject", "Sketch002")
body.addObject(sketch3)
sketch3.AttachmentSupport = (doc.XZ_Plane, [""])
sketch3.MapMode = "FlatFace"
sketch3.addGeometry(Part.Circle(V(-1.164187, -0.6689, 0), V(0, 0, 1), 122), False)
sketch3.addConstraint(Sketcher.Constraint("Diameter", 0, 244.0))
sketch3.addConstraint(Sketcher.Constraint("DistanceY", 0, 3, -1, 1, 0.6689))
sketch3.addConstraint(Sketcher.Constraint("DistanceX", 0, 3, -1, 1, 1.164187))
pad3 = doc.addObject("PartDesign::Pad", "Pad002")
body.addObject(pad3)
pad3.Profile = sketch3
pad3.Length = 250
pad3.Reversed = True

sketch4 = doc.addObject("Sketcher::SketchObject", "Sketch003")
body.addObject(sketch4)
sketch4.AttachmentSupport = (doc.YZ_Plane, [""])
sketch4.MapMode = "FlatFace"
sketch4.addGeometry(Part.ArcOfCircle(Part.Circle(V(138.548836, 49.062433, 0), V(0, 0, 1), 16), math.radians(-12.586459), math.radians(184.709821)), False)
sketch4.addGeometry(Part.LineSegment(V(122.602863, 47.748683, 0), V(125.512502, 12.432124, 0)), False)
sketch4.addGeometry(Part.ArcOfCircle(Part.Circle(V(136.012455, 12.463224, 0), V(0, 0, 1), 10.5), math.radians(-179.830292), math.radians(-12.586452)), False)
sketch4.addGeometry(Part.LineSegment(V(146.260122, 10.175143, 0), V(154.16433, 45.575831, 0)), False)
sketch4.addGeometry(Part.ArcOfCircle(Part.Circle(V(96.548866, 49.113092, 0), V(0, 0, 1), 16), math.radians(-9.479104), math.radians(187.800243)), False)
sketch4.addGeometry(Part.LineSegment(V(80.69691, 46.941575, 0), V(85.609636, 11.078942, 0)), False)
sketch4.addGeometry(Part.ArcOfCircle(Part.Circle(V(96.012477, 12.504043, 0), V(0, 0, 1), 10.5), math.radians(-172.19952), math.radians(-9.479115)), False)
sketch4.addGeometry(Part.LineSegment(V(106.369107, 10.774818, 0), V(112.330398, 46.478086, 0)), False)
sketch4.addConstraint(Sketcher.Constraint("Tangent", 0, 2, 1, 1))
sketch4.addConstraint(Sketcher.Constraint("Coincident", 1, 2, 2, 1))
sketch4.addConstraint(Sketcher.Constraint("Tangent", 2, 2, 3, 1))
sketch4.addConstraint(Sketcher.Constraint("Tangent", 3, 2, 0, 1))
sketch4.addConstraint(Sketcher.Constraint("Tangent", 4, 2, 5, 1))
sketch4.addConstraint(Sketcher.Constraint("Coincident", 5, 2, 6, 1))
sketch4.addConstraint(Sketcher.Constraint("Tangent", 6, 2, 7, 1))
sketch4.addConstraint(Sketcher.Constraint("Tangent", 7, 2, 4, 1))
sketch4.addConstraint(Sketcher.Constraint("Equal", 0, 4))
sketch4.addConstraint(Sketcher.Constraint("Equal", 2, 6))
sketch4.addConstraint(Sketcher.Constraint("Radius", 0, 16.0))
sketch4.addConstraint(Sketcher.Constraint("Radius", 2, 10.5))
sketch4.addConstraint(Sketcher.Constraint("DistanceX", -1, 1, 1, 2, 125.512502))
sketch4.addConstraint(Sketcher.Constraint("DistanceY", 1, 2, 2, 3, 0.031101))
sketch4.addConstraint(Sketcher.Constraint("DistanceY", 2, 2, 6, 3, 2.3289))
sketch4.addConstraint(Sketcher.Constraint("DistanceY", 3, 2, 0, 3, 3.486602))
sketch4.addConstraint(Sketcher.Constraint("DistanceY", 5, 2, 6, 3, 1.425101))
sketch4.addConstraint(Sketcher.Constraint("Distance", 5, 36.19756))
sketch4.addConstraint(Sketcher.Constraint("DistanceY", -1, 1, 4, 3, 49.113092))
sketch4.addConstraint(Sketcher.Constraint("DistanceX", -1, 1, 3, 2, 154.16433))
sketch4.addConstraint(Sketcher.Constraint("DistanceY", -1, 1, 3, 2, 45.575831))
sketch4.addConstraint(Sketcher.Constraint("DistanceX", -1, 1, 4, 2, 80.69691))
pad4 = doc.addObject("PartDesign::Pad", "Pad003")
body.addObject(pad4)
pad4.Profile = sketch4
pad4.Length = 137
pad4.Reversed = True

sketch5 = doc.addObject("Sketcher::SketchObject", "Sketch004")
body.addObject(sketch5)
sketch5.AttachmentSupport = (doc.YZ_Plane, [""])
sketch5.MapMode = "FlatFace"
sketch5.AttachmentOffset = App.Placement(V(0, 0, -137), App.Rotation())
sketch5.addGeometry(Part.Circle(V(96.561478, 48.752483, 0), V(0, 0, 1), 9.029167), False)
sketch5.addGeometry(Part.Circle(V(96.561478, 48.752483, 0), V(0, 0, 1), 6.410546), False)
sketch5.addConstraint(Sketcher.Constraint("Coincident", 1, 3, 0, 3))
sketch5.addConstraint(Sketcher.Constraint("Diameter", 0, 18.058334))
sketch5.addConstraint(Sketcher.Constraint("Diameter", 1, 12.821092))
sketch5.addConstraint(Sketcher.Constraint("DistanceX", -1, 1, 0, 3, 96.561478))
sketch5.addConstraint(Sketcher.Constraint("DistanceY", -1, 1, 0, 3, 48.752483))
pad5 = doc.addObject("PartDesign::Pad", "Pad004")
body.addObject(pad5)
pad5.Profile = sketch5
pad5.Length = 28
pad5.Reversed = True

sketch6 = doc.addObject("Sketcher::SketchObject", "Sketch005")
body.addObject(sketch6)
sketch6.AttachmentSupport = (doc.YZ_Plane, [""])
sketch6.MapMode = "FlatFace"
sketch6.AttachmentOffset = App.Placement(V(0, 0, -137), App.Rotation())
sketch6.addGeometry(Part.Circle(V(139.271042, 48.752483, 0), V(0, 0, 1), 9.029167), False)
sketch6.addGeometry(Part.Circle(V(139.271042, 48.752483, 0), V(0, 0, 1), 6.410546), False)
sketch6.addConstraint(Sketcher.Constraint("Coincident", 1, 3, 0, 3))
sketch6.addConstraint(Sketcher.Constraint("Diameter", 0, 18.058334))
sketch6.addConstraint(Sketcher.Constraint("Diameter", 1, 12.821092))
sketch6.addConstraint(Sketcher.Constraint("DistanceX", -1, 1, 0, 3, 139.271042))
sketch6.addConstraint(Sketcher.Constraint("DistanceY", -1, 1, 0, 3, 48.752483))
pad6 = doc.addObject("PartDesign::Pad", "Pad005")
body.addObject(pad6)
pad6.Profile = sketch6
pad6.Length = 24
pad6.Reversed = True

doc.recompute()
